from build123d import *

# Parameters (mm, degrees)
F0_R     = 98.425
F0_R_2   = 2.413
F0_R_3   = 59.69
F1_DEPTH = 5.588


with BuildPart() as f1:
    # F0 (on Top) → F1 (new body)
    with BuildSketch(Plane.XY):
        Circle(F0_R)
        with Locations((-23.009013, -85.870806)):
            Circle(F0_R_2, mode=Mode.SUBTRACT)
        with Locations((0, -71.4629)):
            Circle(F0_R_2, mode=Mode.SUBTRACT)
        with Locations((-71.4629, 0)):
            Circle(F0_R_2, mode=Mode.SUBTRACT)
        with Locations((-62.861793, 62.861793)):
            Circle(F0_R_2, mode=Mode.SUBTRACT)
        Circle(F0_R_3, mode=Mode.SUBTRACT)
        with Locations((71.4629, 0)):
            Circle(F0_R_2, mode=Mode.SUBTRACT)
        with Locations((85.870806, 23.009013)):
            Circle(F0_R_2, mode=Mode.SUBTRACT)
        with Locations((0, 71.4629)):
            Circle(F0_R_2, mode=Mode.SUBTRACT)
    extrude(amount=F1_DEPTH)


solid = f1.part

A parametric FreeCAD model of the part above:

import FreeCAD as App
import Part
import Sketcher

V = App.Vector
Q = App.Units.Quantity

doc = App.newDocument("Part")
body = doc.addObject("PartDesign::Body", "Body")

sketch1 = doc.addObject("Sketcher::SketchObject", "Sketch")
body.addObject(sketch1)
sketch1.AttachmentSupport = (doc.XY_Plane, [""])
sketch1.MapMode = "FlatFace"
sketch1.addGeometry([
    Part.Circle(V(0, 0, 0), V(0, 0, 1), 98.4),
    Part.Circle(V(-23, -85.9, 0), V(0, 0, 1), 2.4),
    Part.Circle(V(0, -71.5, 0), V(0, 0, 1), 2.4),
    Part.Circle(V(-71.5, 0, 0), V(0, 0, 1), 2.4),
    Part.Circle(V(0, 0, 0), V(0, 0, 1), 59.7),
    Part.Circle(V(-62.9, 62.9, 0), V(0, 0, 1), 2.4),
    Part.Circle(V(0, 71.5, 0), V(0, 0, 1), 2.4),
    Part.Circle(V(71.5, 0, 0), V(0, 0, 1), 2.4),
    Part.Circle(V(85.9, 23, 0), V(0, 0, 1), 2.4),
], False)
sketch1.addConstraint([
    Sketcher.Constraint("Coincident", 0, 3, -1, 1),
    Sketcher.Constraint("Coincident", 4, 3, -1, 1),
    Sketcher.Constraint("Equal", 1, 2),
    Sketcher.Constraint("Equal", 2, 3),
    Sketcher.Constraint("Equal", 3, 5),
    Sketcher.Constraint("Equal", 5, 6),
    Sketcher.Constraint("Equal", 6, 7),
    Sketcher.Constraint("Equal", 7, 8),
    Sketcher.Constraint("Symmetric", 2, 3, 6, 3, -1, 1),
    Sketcher.Constraint("Symmetric", 3, 3, 7, 3, -1, 1),
    Sketcher.Constraint("PointOnObject", 2, 3, -2),
    Sketcher.Constraint("PointOnObject", 3, 3, -1),
    Sketcher.Constraint("Diameter", 4, Q("4.7 in")),
    Sketcher.Constraint("Diameter", 0, Q("7.75 in")),
    Sketcher.Constraint("Diameter", 1, Q("0.19 in")),
    Sketcher.Constraint("DistanceY", 2, 3, 6, 3, Q("5.627 in")),
    Sketcher.Constraint("DistanceX", 3, 3, -1, 1, Q("2.8135 in")),
    Sketcher.Constraint("DistanceY", 1, 3, 5, 3, Q("148.732599 mm")),
    Sketcher.Constraint("DistanceX", 5, 3, 1, 3, Q("39.85278 mm")),
    Sketcher.Constraint("DistanceX", 1, 3, -1, 1, Q("23.009013 mm")),
    Sketcher.Constraint("DistanceY", 1, 3, -1, 1, Q("85.870806 mm")),
    Sketcher.Constraint("DistanceX", -1, 1, 8, 3, Q("85.870806 mm")),
    Sketcher.Constraint("DistanceY", -1, 1, 8, 3, Q("23.009013 mm")),
])
pad1 = doc.addObject("PartDesign::Pad", "Pad")
body.addObject(pad1)
pad1.Profile = sketch1
pad1.Length = Q("0.22 in")

doc.recompute()
